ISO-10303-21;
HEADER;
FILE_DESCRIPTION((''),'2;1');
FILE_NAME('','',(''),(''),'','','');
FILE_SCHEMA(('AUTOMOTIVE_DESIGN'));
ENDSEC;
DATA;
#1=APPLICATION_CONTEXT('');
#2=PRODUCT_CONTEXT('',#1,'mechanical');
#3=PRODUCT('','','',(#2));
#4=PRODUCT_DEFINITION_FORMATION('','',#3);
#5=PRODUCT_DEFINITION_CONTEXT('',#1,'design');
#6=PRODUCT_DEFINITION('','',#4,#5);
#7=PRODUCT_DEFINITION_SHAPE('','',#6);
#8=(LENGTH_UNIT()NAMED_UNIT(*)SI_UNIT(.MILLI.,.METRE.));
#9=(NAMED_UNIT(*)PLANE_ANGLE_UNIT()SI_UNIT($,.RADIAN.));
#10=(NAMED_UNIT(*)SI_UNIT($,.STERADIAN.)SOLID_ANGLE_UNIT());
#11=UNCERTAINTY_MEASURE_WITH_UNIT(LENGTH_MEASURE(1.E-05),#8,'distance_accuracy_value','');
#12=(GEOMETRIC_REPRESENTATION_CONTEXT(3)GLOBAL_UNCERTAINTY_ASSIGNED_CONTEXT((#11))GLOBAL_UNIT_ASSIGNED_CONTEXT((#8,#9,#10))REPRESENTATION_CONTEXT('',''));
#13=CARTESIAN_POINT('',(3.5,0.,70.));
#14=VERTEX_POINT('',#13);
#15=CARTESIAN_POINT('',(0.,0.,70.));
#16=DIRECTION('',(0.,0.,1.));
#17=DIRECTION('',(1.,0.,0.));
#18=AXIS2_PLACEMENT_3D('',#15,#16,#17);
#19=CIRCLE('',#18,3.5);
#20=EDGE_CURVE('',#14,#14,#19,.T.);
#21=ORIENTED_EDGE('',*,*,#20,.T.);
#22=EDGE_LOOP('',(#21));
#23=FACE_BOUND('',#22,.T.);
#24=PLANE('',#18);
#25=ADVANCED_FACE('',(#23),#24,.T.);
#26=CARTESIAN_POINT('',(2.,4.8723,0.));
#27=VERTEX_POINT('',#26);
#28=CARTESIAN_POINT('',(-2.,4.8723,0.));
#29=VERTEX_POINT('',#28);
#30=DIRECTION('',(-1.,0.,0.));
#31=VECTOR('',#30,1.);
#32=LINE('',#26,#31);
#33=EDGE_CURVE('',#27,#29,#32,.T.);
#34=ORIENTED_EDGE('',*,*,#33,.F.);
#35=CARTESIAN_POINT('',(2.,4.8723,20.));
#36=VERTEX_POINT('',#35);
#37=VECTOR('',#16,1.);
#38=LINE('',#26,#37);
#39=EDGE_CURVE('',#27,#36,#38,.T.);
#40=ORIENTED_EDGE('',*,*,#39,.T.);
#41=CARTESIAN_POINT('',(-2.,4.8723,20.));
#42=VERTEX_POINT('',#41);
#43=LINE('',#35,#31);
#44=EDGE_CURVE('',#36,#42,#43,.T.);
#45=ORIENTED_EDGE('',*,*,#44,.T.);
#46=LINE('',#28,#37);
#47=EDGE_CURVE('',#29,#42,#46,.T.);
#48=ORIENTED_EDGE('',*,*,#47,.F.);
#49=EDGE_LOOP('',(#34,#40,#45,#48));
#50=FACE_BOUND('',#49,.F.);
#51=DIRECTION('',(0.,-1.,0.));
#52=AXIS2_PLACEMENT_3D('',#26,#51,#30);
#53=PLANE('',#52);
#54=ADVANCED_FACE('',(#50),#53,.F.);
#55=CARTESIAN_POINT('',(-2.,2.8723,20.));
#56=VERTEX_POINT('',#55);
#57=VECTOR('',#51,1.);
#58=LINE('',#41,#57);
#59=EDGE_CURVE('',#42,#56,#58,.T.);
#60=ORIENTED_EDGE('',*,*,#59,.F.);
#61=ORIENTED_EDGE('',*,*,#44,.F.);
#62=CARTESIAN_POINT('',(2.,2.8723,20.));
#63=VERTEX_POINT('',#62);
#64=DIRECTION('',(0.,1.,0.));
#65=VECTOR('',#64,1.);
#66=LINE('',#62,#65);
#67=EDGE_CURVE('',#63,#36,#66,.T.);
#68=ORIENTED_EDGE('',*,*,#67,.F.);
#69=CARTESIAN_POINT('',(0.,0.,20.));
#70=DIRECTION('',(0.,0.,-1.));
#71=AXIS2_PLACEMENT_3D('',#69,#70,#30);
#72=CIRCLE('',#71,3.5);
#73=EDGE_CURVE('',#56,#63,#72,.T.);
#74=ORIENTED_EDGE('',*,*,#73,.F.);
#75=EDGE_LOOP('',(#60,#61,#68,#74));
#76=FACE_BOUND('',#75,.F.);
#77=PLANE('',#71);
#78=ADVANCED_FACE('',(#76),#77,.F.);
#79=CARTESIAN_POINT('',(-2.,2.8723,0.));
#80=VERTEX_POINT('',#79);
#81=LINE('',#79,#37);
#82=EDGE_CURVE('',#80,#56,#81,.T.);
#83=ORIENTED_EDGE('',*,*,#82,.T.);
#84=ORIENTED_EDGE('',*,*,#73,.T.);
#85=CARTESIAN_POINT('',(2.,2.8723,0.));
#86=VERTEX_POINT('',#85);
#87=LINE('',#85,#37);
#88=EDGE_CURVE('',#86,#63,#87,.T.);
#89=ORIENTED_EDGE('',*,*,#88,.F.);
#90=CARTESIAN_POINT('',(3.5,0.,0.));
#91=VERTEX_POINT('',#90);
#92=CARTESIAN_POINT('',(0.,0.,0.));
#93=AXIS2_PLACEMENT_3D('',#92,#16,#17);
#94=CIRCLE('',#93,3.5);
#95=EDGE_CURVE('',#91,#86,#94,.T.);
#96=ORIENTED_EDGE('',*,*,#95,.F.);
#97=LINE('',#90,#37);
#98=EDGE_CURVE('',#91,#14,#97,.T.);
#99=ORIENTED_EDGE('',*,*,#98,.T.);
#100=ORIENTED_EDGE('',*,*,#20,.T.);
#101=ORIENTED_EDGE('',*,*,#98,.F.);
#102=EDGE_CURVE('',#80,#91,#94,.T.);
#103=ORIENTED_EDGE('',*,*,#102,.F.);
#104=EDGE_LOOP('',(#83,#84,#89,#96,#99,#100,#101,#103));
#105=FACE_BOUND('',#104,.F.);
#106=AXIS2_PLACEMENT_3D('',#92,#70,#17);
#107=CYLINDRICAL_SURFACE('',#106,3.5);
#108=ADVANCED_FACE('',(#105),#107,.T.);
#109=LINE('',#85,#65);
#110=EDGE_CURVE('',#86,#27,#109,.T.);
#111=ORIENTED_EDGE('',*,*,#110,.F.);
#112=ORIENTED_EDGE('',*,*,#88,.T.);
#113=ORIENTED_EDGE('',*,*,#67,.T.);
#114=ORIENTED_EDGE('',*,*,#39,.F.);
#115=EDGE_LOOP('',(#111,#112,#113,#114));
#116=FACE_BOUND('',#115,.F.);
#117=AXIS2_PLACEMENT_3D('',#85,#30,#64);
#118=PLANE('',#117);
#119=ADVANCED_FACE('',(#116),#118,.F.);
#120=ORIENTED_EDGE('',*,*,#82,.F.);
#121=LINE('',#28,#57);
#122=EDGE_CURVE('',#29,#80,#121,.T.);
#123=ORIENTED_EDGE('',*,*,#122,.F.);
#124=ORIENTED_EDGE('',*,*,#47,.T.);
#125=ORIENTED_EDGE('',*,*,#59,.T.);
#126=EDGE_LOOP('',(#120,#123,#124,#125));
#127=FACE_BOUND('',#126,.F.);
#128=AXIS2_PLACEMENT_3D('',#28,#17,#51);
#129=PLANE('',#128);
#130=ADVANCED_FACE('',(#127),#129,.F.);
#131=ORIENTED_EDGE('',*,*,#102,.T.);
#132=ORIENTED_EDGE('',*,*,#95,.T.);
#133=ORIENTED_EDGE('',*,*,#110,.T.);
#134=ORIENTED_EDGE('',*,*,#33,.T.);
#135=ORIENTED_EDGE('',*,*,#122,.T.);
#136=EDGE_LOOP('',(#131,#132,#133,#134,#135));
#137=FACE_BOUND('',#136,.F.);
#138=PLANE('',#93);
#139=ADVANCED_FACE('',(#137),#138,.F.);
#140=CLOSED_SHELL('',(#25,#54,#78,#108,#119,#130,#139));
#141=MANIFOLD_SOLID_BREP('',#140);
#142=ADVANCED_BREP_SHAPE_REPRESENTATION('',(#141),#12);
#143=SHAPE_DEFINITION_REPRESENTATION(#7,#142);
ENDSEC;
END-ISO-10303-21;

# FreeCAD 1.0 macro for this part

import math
import FreeCAD as App
import Part
import Sketcher

V = App.Vector

doc = App.newDocument("Part")
body = doc.addObject("PartDesign::Body", "Body")

# Sketch on XY plane
sketch1 = body.newObject("Sketcher::SketchObject", "Sketch")
sketch1.AttachmentSupport = (doc.getObject("XY_Plane"), [""])
sketch1.MapMode = "FlatFace"
sketch1.addGeometry(Part.Circle(V(0, 0, 0), V(0, 0, 1), 3.5), False)
sketch1.addConstraint([
    Sketcher.Constraint("Coincident", 0, 3, -1, 1),
    Sketcher.Constraint("Diameter", 0, 7.0),
])
pad1 = body.newObject("PartDesign::Pad", "Pad")
pad1.Profile = sketch1
pad1.Length = 70

# Sketch on XY plane
sketch2 = body.newObject("Sketcher::SketchObject", "Sketch001")
sketch2.AttachmentSupport = (doc.getObject("XY_Plane"), [""])
sketch2.MapMode = "FlatFace"
sketch2.addGeometry([
    Part.ArcOfCircle(Part.Circle(V(0, 0, 0), V(0, 0, 1), 3.5), math.radians(55), math.radians(125)),
    Part.LineSegment(V(-2, 2.9, 0), V(-2, 4.9, 0)),
    Part.LineSegment(V(-2, 4.9, 0), V(2, 4.9, 0)),
    Part.LineSegment(V(2, 4.9, 0), V(2, 2.9, 0)),
], False)
sketch2.addConstraint([
    Sketcher.Constraint("Coincident", 0, 2, 1, 1),
    Sketcher.Constraint("Coincident", 1, 2, 2, 1),
    Sketcher.Constraint("Coincident", 2, 2, 3, 1),
    Sketcher.Constraint("Coincident", 3, 2, 0, 1),
    Sketcher.Constraint("Vertical", 1),
    Sketcher.Constraint("Horizontal", 2),
    Sketcher.Constraint("Vertical", 3),
    Sketcher.Constraint("Coincident", 0, 3, -1, 1),
    Sketcher.Constraint("Horizontal", 0, 2, 3, 2),
    Sketcher.Constraint("DistanceX", 2, 1, 2, 2, 4.0),
    Sketcher.Constraint("DistanceY", 1, 1, 1, 2, 2.0),
    Sketcher.Constraint("Radius", 0, 3.5),
])
pad2 = body.newObject("PartDesign::Pad", "Pad001")
pad2.Profile = sketch2
pad2.Length = 20

doc.recompute()
